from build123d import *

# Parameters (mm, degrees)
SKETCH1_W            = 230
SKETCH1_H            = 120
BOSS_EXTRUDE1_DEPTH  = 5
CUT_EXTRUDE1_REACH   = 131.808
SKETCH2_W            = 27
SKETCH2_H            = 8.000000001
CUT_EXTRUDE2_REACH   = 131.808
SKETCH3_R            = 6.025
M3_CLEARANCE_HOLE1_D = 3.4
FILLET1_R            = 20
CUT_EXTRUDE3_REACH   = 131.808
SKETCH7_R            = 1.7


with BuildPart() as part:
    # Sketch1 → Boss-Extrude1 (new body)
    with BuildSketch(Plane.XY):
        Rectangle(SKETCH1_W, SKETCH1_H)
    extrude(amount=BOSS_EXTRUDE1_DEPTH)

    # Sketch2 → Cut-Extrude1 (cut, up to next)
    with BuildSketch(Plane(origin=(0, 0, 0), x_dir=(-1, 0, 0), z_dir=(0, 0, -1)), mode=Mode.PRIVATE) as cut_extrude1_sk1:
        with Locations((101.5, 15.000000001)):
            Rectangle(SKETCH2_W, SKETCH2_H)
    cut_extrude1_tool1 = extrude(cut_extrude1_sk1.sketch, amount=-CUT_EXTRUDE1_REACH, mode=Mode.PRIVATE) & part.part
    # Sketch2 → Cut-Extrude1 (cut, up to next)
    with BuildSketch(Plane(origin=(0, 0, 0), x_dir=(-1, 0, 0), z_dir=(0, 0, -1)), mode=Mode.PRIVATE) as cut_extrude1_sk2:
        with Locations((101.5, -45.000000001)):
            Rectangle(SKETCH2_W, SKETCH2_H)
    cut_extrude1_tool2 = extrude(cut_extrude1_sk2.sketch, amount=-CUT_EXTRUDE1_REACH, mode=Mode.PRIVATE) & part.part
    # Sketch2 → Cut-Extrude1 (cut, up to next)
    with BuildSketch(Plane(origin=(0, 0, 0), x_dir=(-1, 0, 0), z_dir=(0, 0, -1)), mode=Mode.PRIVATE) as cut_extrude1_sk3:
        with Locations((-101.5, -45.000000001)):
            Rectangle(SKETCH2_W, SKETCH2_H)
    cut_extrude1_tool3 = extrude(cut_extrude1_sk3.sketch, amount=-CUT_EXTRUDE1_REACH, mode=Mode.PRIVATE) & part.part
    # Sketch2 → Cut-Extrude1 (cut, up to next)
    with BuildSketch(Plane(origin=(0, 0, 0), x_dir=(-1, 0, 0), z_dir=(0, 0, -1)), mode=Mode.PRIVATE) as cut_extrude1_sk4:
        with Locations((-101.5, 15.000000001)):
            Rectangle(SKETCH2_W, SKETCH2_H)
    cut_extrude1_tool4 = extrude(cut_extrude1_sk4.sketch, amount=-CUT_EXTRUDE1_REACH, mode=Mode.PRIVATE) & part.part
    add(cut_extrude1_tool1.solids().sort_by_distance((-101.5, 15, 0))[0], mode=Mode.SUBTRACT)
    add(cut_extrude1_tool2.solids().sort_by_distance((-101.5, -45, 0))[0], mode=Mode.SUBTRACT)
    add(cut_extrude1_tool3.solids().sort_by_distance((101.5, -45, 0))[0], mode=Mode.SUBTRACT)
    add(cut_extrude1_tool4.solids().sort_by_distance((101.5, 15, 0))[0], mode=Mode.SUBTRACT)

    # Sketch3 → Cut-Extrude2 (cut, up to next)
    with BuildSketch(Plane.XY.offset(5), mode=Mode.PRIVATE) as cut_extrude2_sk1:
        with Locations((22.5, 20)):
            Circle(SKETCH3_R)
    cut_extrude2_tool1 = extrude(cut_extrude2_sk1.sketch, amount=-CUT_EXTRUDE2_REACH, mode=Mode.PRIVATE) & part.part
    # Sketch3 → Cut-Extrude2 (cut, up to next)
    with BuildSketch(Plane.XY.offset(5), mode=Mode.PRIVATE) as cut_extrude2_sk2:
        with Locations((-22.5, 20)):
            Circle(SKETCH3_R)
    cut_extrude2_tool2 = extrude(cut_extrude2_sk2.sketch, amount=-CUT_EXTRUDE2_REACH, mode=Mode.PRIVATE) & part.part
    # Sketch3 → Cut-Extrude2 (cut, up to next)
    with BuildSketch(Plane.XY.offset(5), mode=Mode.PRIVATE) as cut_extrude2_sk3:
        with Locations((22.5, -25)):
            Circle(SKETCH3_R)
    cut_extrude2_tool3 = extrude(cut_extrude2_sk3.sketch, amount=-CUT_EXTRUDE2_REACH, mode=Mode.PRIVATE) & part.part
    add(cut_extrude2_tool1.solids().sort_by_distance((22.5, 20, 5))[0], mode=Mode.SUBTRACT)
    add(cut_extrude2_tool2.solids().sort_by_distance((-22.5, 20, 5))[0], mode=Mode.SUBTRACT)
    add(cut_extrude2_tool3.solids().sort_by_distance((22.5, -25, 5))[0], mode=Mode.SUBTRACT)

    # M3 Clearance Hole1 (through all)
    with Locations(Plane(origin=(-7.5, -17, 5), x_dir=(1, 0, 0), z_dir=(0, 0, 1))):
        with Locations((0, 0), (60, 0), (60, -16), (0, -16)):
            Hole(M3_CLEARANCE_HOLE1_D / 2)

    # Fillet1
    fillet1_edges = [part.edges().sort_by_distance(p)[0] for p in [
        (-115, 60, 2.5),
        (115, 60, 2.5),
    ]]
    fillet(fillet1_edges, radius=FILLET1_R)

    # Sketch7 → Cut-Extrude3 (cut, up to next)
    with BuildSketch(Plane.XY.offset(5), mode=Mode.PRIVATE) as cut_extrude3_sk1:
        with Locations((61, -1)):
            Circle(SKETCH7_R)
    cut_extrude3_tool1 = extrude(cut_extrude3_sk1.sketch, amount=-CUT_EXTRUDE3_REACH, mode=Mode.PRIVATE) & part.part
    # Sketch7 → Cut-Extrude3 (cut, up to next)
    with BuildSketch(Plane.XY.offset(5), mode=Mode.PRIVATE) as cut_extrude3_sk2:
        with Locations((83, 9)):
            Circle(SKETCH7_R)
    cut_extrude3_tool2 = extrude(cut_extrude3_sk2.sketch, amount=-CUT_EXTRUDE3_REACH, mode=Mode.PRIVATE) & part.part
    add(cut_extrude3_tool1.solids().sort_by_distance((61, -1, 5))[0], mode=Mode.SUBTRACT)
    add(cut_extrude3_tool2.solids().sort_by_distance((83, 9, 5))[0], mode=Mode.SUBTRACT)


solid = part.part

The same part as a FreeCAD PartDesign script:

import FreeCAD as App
import Part
import Sketcher


def edges_at(feature, points):
    """Names of the edges that pass closest to the given points."""
    edges = feature.Shape.Edges
    near = lambda p: min(range(len(edges)), key=lambda i: edges[i].distToShape(Part.Vertex(*p))[0])
    return sorted({f"Edge{near(p) + 1}" for p in points})

doc = App.newDocument("Part")
body = doc.addObject("PartDesign::Body", "Body")

# Sketch on XY plane
sketch1 = body.newObject("Sketcher::SketchObject", "Sketch")
sketch1.AttachmentSupport = (doc.getObject("XY_Plane"), [""])
sketch1.MapMode = "FlatFace"
sketch1.addGeometry([
    Part.LineSegment(App.Vector(-115, 60, 0), App.Vector(-115, -60, 0)),
    Part.LineSegment(App.Vector(-115, -60, 0), App.Vector(115, -60, 0)),
    Part.LineSegment(App.Vector(115, -60, 0), App.Vector(115, 60, 0)),
    Part.LineSegment(App.Vector(115, 60, 0), App.Vector(-115, 60, 0)),
], False)
sketch1.addConstraint([
    Sketcher.Constraint("Coincident", 0, 2, 1, 1),
    Sketcher.Constraint("Coincident", 1, 2, 2, 1),
    Sketcher.Constraint("Coincident", 2, 2, 3, 1),
    Sketcher.Constraint("Coincident", 3, 2, 0, 1),
    Sketcher.Constraint("Vertical", 0),
    Sketcher.Constraint("Horizontal", 1),
    Sketcher.Constraint("Vertical", 2),
    Sketcher.Constraint("Horizontal", 3),
    Sketcher.Constraint("Symmetric", 0, 2, 2, 2, -1, 1),
    Sketcher.Constraint("DistanceX", 1, 1, 1, 2, 230.0),
    Sketcher.Constraint("DistanceY", 0, 2, 0, 1, 120.0),
])
pad1 = body.newObject("PartDesign::Pad", "Pad")
pad1.Profile = sketch1
pad1.Length = 5

# Sketch on XY plane
sketch2 = body.newObject("Sketcher::SketchObject", "Sketch001")
sketch2.AttachmentSupport = (doc.getObject("XY_Plane"), [""])
sketch2.MapMode = "FlatFace"
sketch2.addGeometry([
    Part.LineSegment(App.Vector(-88, 19, 0), App.Vector(-88, 11, 0)),
    Part.LineSegment(App.Vector(-88, 11, 0), App.Vector(-115, 11, 0)),
    Part.LineSegment(App.Vector(-115, 11, 0), App.Vector(-115, 19, 0)),
    Part.LineSegment(App.Vector(-115, 19, 0), App.Vector(-88, 19, 0)),
], False)
sketch2.addConstraint([
    Sketcher.Constraint("Coincident", 0, 2, 1, 1),
    Sketcher.Constraint("Coincident", 1, 2, 2, 1),
    Sketcher.Constraint("Coincident", 2, 2, 3, 1),
    Sketcher.Constraint("Coincident", 3, 2, 0, 1),
    Sketcher.Constraint("Vertical", 0),
    Sketcher.Constraint("Horizontal", 1),
    Sketcher.Constraint("Vertical", 2),
    Sketcher.Constraint("Horizontal", 3),
    Sketcher.Constraint("DistanceX", 1, 2, 1, 1, 27.0),
    Sketcher.Constraint("DistanceY", 0, 2, 0, 1, 8.0),
    Sketcher.Constraint("DistanceX", 0, 2, -1, 1, 88.0),
    Sketcher.Constraint("DistanceY", -1, 1, 0, 2, 11.0),
])
pocket1 = body.newObject("PartDesign::Pocket", "Pocket")
pocket1.Profile = sketch2
pocket1.Type = "UpToFirst"
pocket1.Reversed = True

# Sketch on XY plane
sketch3 = body.newObject("Sketcher::SketchObject", "Sketch002")
sketch3.AttachmentSupport = (doc.getObject("XY_Plane"), [""])
sketch3.MapMode = "FlatFace"
sketch3.addGeometry([
    Part.LineSegment(App.Vector(-88, -41, 0), App.Vector(-88, -49, 0)),
    Part.LineSegment(App.Vector(-88, -49, 0), App.Vector(-115, -49, 0)),
    Part.LineSegment(App.Vector(-115, -49, 0), App.Vector(-115, -41, 0)),
    Part.LineSegment(App.Vector(-115, -41, 0), App.Vector(-88, -41, 0)),
], False)
sketch3.addConstraint([
    Sketcher.Constraint("Coincident", 0, 2, 1, 1),
    Sketcher.Constraint("Coincident", 1, 2, 2, 1),
    Sketcher.Constraint("Coincident", 2, 2, 3, 1),
    Sketcher.Constraint("Coincident", 3, 2, 0, 1),
    Sketcher.Constraint("Vertical", 0),
    Sketcher.Constraint("Horizontal", 1),
    Sketcher.Constraint("Vertical", 2),
    Sketcher.Constraint("Horizontal", 3),
    Sketcher.Constraint("DistanceX", 1, 2, 1, 1, 27.0),
    Sketcher.Constraint("DistanceY", 0, 2, 0, 1, 8.0),
    Sketcher.Constraint("DistanceX", 0, 2, -1, 1, 88.0),
    Sketcher.Constraint("DistanceY", 0, 2, -1, 1, 49.0),
])
pocket2 = body.newObject("PartDesign::Pocket", "Pocket001")
pocket2.Profile = sketch3
pocket2.Type = "UpToFirst"
pocket2.Reversed = True

# Sketch on XY plane
sketch4 = body.newObject("Sketcher::SketchObject", "Sketch003")
sketch4.AttachmentSupport = (doc.getObject("XY_Plane"), [""])
sketch4.MapMode = "FlatFace"
sketch4.addGeometry([
    Part.LineSegment(App.Vector(115, -41, 0), App.Vector(115, -49, 0)),
    Part.LineSegment(App.Vector(115, -49, 0), App.Vector(88, -49, 0)),
    Part.LineSegment(App.Vector(88, -49, 0), App.Vector(88, -41, 0)),
    Part.LineSegment(App.Vector(88, -41, 0), App.Vector(115, -41, 0)),
], False)
sketch4.addConstraint([
    Sketcher.Constraint("Coincident", 0, 2, 1, 1),
    Sketcher.Constraint("Coincident", 1, 2, 2, 1),
    Sketcher.Constraint("Coincident", 2, 2, 3, 1),
    Sketcher.Constraint("Coincident", 3, 2, 0, 1),
    Sketcher.Constraint("Vertical", 0),
    Sketcher.Constraint("Horizontal", 1),
    Sketcher.Constraint("Vertical", 2),
    Sketcher.Constraint("Horizontal", 3),
    Sketcher.Constraint("DistanceX", 1, 2, 1, 1, 27.0),
    Sketcher.Constraint("DistanceY", 0, 2, 0, 1, 8.0),
    Sketcher.Constraint("DistanceX", -1, 1, 0, 2, 115.0),
    Sketcher.Constraint("DistanceY", 0, 2, -1, 1, 49.0),
])
pocket3 = body.newObject("PartDesign::Pocket", "Pocket002")
pocket3.Profile = sketch4
pocket3.Type = "UpToFirst"
pocket3.Reversed = True

# Sketch on XY plane
sketch5 = body.newObject("Sketcher::SketchObject", "Sketch004")
sketch5.AttachmentSupport = (doc.getObject("XY_Plane"), [""])
sketch5.MapMode = "FlatFace"
sketch5.addGeometry([
    Part.LineSegment(App.Vector(115, 19, 0), App.Vector(115, 11, 0)),
    Part.LineSegment(App.Vector(115, 11, 0), App.Vector(88, 11, 0)),
    Part.LineSegment(App.Vector(88, 11, 0), App.Vector(88, 19, 0)),
    Part.LineSegment(App.Vector(88, 19, 0), App.Vector(115, 19, 0)),
], False)
sketch5.addConstraint([
    Sketcher.Constraint("Coincident", 0, 2, 1, 1),
    Sketcher.Constraint("Coincident", 1, 2, 2, 1),
    Sketcher.Constraint("Coincident", 2, 2, 3, 1),
    Sketcher.Constraint("Coincident", 3, 2, 0, 1),
    Sketcher.Constraint("Vertical", 0),
    Sketcher.Constraint("Horizontal", 1),
    Sketcher.Constraint("Vertical", 2),
    Sketcher.Constraint("Horizontal", 3),
    Sketcher.Constraint("DistanceX", 1, 2, 1, 1, 27.0),
    Sketcher.Constraint("DistanceY", 0, 2, 0, 1, 8.0),
    Sketcher.Constraint("DistanceX", -1, 1, 0, 2, 115.0),
    Sketcher.Constraint("DistanceY", -1, 1, 0, 2, 11.0),
])
pocket4 = body.newObject("PartDesign::Pocket", "Pocket003")
pocket4.Profile = sketch5
pocket4.Type = "UpToFirst"
pocket4.Reversed = True

# Sketch on XY plane
sketch6 = body.newObject("Sketcher::SketchObject", "Sketch005")
sketch6.AttachmentSupport = (doc.getObject("XY_Plane"), [""])
sketch6.MapMode = "FlatFace"
sketch6.AttachmentOffset = App.Placement(App.Vector(0, 0, 5), App.Rotation())
sketch6.addGeometry(Part.Circle(App.Vector(22.5, 20, 0), App.Vector(0, 0, 1), 6.025), False)
sketch6.addConstraint([
    Sketcher.Constraint("Diameter", 0, 12.05),
    Sketcher.Constraint("DistanceY", -1, 1, 0, 3, 20.0),
    Sketcher.Constraint("DistanceX", -1, 1, 0, 3, 22.5),
])
pocket5 = body.newObject("PartDesign::Pocket", "Pocket004")
pocket5.Profile = sketch6
pocket5.Type = "UpToFirst"

# Sketch on XY plane
sketch7 = body.newObject("Sketcher::SketchObject", "Sketch006")
sketch7.AttachmentSupport = (doc.getObject("XY_Plane"), [""])
sketch7.MapMode = "FlatFace"
sketch7.AttachmentOffset = App.Placement(App.Vector(0, 0, 5), App.Rotation())
sketch7.addGeometry(Part.Circle(App.Vector(-22.5, 20, 0), App.Vector(0, 0, 1), 6.025), False)
sketch7.addConstraint([
    Sketcher.Constraint("Diameter", 0, 12.05),
    Sketcher.Constraint("DistanceY", -1, 1, 0, 3, 20.0),
    Sketcher.Constraint("DistanceX", 0, 3, -1, 1, 22.5),
])
pocket6 = body.newObject("PartDesign::Pocket", "Pocket005")
pocket6.Profile = sketch7
pocket6.Type = "UpToFirst"

# Sketch on XY plane
sketch8 = body.newObject("Sketcher::SketchObject", "Sketch007")
sketch8.AttachmentSupport = (doc.getObject("XY_Plane"), [""])
sketch8.MapMode = "FlatFace"
sketch8.AttachmentOffset = App.Placement(App.Vector(0, 0, 5), App.Rotation())
sketch8.addGeometry(Part.Circle(App.Vector(22.5, -25, 0), App.Vector(0, 0, 1), 6.025), False)
sketch8.addConstraint([
    Sketcher.Constraint("Diameter", 0, 12.05),
    Sketcher.Constraint("DistanceY", 0, 3, -1, 1, 25.0),
    Sketcher.Constraint("DistanceX", -1, 1, 0, 3, 22.5),
])
pocket7 = body.newObject("PartDesign::Pocket", "Pocket006")
pocket7.Profile = sketch8
pocket7.Type = "UpToFirst"

# Sketch on XY plane
sketch9 = body.newObject("Sketcher::SketchObject", "Sketch008")
sketch9.AttachmentSupport = (doc.getObject("XY_Plane"), [""])
sketch9.MapMode = "FlatFace"
sketch9.AttachmentOffset = App.Placement(App.Vector(0, 0, 5), App.Rotation())
sketch9.addGeometry([
    Part.Circle(App.Vector(-7.5, -17, 0), App.Vector(0, 0, 1), 1.7),
    Part.Circle(App.Vector(52.5, -17, 0), App.Vector(0, 0, 1), 1.7),
    Part.Circle(App.Vector(52.5, -33, 0), App.Vector(0, 0, 1), 1.7),
    Part.Circle(App.Vector(-7.5, -33, 0), App.Vector(0, 0, 1), 1.7),
], False)
sketch9.addConstraint([
    Sketcher.Constraint("Equal", 0, 1),
    Sketcher.Constraint("Equal", 1, 2),
    Sketcher.Constraint("Equal", 2, 3),
    Sketcher.Constraint("Horizontal", 0, 3, 1, 3),
    Sketcher.Constraint("Horizontal", 2, 3, 3, 3),
    Sketcher.Constraint("Vertical", 1, 3, 2, 3),
    Sketcher.Constraint("Vertical", 0, 3, 3, 3),
    Sketcher.Constraint("Diameter", 0, 3.4),
    Sketcher.Constraint("DistanceY", 0, 3, -1, 1, 17.0),
    Sketcher.Constraint("DistanceY", 2, 3, -1, 1, 33.0),
    Sketcher.Constraint("DistanceX", 0, 3, 1, 3, 60.0),
    Sketcher.Constraint("DistanceX", 0, 3, -1, 1, 7.5),
])
doc.recompute()
hole = body.newObject("PartDesign::Hole", "Hole")
hole.Profile = sketch9
hole.ThreadType = "None"
hole.Diameter = 3.4
hole.DepthType = "ThroughAll"
doc.recompute()

fillet = body.newObject("PartDesign::Fillet", "Fillet")
fillet.Base = (hole, edges_at(hole, [(-115, 60, 2.5), (115, 60, 2.5)]))
fillet.Radius = 20

# Sketch on XY plane
sketch10 = body.newObject("Sketcher::SketchObject", "Sketch009")
sketch10.AttachmentSupport = (doc.getObject("XY_Plane"), [""])
sketch10.MapMode = "FlatFace"
sketch10.AttachmentOffset = App.Placement(App.Vector(0, 0, 5), App.Rotation())
sketch10.addGeometry(Part.Circle(App.Vector(61, -1, 0), App.Vector(0, 0, 1), 1.7), False)
sketch10.addConstraint([
    Sketcher.Constraint("Diameter", 0, 3.4),
    Sketcher.Constraint("DistanceX", -1, 1, 0, 3, 61.0),
    Sketcher.Constraint("DistanceY", 0, 3, -1, 1, 1.0),
])
pocket8 = body.newObject("PartDesign::Pocket", "Pocket007")
pocket8.Profile = sketch10
pocket8.Type = "UpToFirst"

# Sketch on XY plane
sketch11 = body.newObject("Sketcher::SketchObject", "Sketch010")
sketch11.AttachmentSupport = (doc.getObject("XY_Plane"), [""])
sketch11.MapMode = "FlatFace"
sketch11.AttachmentOffset = App.Placement(App.Vector(0, 0, 5), App.Rotation())
sketch11.addGeometry(Part.Circle(App.Vector(83, 9, 0), App.Vector(0, 0, 1), 1.7), False)
sketch11.addConstraint([
    Sketcher.Constraint("Diameter", 0, 3.4),
    Sketcher.Constraint("DistanceX", -1, 1, 0, 3, 83.0),
    Sketcher.Constraint("DistanceY", -1, 1, 0, 3, 9.0),
])
pocket9 = body.newObject("PartDesign::Pocket", "Pocket008")
pocket9.Profile = sketch11
pocket9.Type = "UpToFirst"

doc.recompute()
